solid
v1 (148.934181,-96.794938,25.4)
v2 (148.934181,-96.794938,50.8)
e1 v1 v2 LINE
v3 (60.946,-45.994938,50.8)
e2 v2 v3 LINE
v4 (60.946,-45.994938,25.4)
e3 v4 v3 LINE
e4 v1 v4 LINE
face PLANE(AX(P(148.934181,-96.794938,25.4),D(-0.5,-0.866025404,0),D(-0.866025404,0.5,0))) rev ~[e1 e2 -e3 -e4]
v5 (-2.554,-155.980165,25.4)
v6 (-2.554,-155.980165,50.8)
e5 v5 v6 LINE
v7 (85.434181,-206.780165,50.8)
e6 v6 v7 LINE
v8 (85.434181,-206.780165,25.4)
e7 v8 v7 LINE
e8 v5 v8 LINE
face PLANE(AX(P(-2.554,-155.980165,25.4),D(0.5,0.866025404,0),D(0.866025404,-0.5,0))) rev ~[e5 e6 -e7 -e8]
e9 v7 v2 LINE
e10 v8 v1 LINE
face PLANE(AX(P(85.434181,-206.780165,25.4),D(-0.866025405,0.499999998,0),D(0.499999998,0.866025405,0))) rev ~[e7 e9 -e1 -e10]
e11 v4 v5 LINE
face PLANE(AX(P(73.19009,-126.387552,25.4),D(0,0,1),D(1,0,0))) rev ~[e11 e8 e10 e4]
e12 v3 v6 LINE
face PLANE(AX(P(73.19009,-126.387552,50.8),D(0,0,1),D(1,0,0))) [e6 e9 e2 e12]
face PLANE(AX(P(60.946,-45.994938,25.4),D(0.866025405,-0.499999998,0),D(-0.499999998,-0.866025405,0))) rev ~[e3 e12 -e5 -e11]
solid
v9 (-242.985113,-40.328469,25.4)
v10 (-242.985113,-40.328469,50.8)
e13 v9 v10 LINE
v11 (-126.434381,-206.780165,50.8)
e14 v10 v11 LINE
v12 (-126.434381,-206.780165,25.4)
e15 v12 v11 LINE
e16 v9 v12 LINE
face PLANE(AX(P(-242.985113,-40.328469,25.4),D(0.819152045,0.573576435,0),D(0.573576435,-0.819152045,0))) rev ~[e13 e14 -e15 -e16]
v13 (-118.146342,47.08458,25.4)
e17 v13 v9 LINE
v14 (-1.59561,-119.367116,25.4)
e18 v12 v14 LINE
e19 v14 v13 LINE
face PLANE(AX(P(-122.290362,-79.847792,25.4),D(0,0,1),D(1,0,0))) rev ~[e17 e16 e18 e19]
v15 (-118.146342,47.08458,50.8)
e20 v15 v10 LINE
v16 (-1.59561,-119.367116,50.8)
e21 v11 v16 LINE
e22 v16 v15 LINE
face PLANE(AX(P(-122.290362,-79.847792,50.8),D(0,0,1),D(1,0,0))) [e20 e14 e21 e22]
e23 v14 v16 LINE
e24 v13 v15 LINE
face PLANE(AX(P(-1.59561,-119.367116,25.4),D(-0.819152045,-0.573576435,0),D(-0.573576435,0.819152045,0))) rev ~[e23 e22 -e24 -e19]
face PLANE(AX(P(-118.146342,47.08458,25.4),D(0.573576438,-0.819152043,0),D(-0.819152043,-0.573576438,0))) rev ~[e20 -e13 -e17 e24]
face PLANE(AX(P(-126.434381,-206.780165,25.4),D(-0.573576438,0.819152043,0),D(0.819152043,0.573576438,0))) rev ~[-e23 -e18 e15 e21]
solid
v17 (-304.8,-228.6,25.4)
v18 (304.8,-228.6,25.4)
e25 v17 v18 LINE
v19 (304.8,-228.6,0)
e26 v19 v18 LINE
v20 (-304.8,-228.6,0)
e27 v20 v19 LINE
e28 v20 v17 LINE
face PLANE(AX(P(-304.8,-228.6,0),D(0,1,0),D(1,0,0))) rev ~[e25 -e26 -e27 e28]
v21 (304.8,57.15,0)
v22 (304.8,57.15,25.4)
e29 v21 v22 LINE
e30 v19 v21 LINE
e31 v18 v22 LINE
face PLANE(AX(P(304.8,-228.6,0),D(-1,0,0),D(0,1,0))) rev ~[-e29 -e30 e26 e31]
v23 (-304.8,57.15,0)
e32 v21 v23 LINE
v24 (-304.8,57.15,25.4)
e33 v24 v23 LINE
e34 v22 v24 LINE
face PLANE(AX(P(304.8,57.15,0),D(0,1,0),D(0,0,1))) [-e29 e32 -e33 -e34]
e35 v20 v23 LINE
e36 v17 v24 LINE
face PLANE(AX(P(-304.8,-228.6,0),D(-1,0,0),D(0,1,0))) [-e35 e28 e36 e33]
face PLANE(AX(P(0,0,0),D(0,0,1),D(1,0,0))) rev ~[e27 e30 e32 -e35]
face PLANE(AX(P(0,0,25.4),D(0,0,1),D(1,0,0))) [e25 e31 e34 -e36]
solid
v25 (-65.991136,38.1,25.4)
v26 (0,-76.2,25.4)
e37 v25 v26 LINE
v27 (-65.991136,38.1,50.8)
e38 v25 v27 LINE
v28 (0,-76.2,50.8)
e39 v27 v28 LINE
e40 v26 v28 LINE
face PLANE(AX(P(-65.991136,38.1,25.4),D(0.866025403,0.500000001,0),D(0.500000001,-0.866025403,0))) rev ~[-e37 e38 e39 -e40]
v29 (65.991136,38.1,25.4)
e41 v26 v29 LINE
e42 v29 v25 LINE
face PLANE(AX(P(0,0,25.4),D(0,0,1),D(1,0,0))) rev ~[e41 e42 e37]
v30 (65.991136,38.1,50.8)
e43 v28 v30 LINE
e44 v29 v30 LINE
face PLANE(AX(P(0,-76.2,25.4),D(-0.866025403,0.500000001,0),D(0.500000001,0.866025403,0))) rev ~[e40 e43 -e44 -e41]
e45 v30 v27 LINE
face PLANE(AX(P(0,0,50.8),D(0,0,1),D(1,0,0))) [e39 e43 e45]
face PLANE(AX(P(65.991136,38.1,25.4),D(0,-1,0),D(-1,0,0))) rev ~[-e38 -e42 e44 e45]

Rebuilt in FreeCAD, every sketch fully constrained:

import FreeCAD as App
import Part
import Sketcher
Q = App.Units.Quantity

doc = App.newDocument("Part")
params = doc.addObject("Spreadsheet::Sheet", "Params")
for row, (alias, value) in enumerate([
    ("sketch1_width", "24 in"),
    ("sketch1_height", "18 in"),
    ("pad1_length", "1 in"),
    ("sketch2_height", "1 in"),
    ("sketch2_width", "6.75 in"),
    ("sketch3_length", "6 in"),
    ("sketch3_length2", "8 in"),
    ("sketch3_length3", "4 in"),
    ("sketch3_length4", "5 in"),
    ("pad2_length", "1 in"),
], start=1):
    params.set(f"A{row}", alias)
    params.set(f"B{row}", "=" + value)
    params.setAlias(f"B{row}", alias)

body = doc.addObject("PartDesign::Body", "Body")

# Sketch on XY plane
sketch1 = body.newObject("Sketcher::SketchObject", "Sketch")
sketch1.AttachmentSupport = (doc.getObject("XY_Plane"), [""])
sketch1.MapMode = "FlatFace"
sketch1.addGeometry(Part.LineSegment(App.Vector(-305, 229, 0), App.Vector(-305, -229, 0)), False)
sketch1.addGeometry(Part.LineSegment(App.Vector(-305, -229, 0), App.Vector(305, -229, 0)), False)
sketch1.addGeometry(Part.LineSegment(App.Vector(305, -229, 0), App.Vector(305, 229, 0)), False)
sketch1.addGeometry(Part.LineSegment(App.Vector(305, 229, 0), App.Vector(-305, 229, 0)), False)
sketch1.addConstraint(Sketcher.Constraint("Coincident", 0, 2, 1, 1))
sketch1.addConstraint(Sketcher.Constraint("Coincident", 1, 2, 2, 1))
sketch1.addConstraint(Sketcher.Constraint("Coincident", 2, 2, 3, 1))
sketch1.addConstraint(Sketcher.Constraint("Coincident", 3, 2, 0, 1))
sketch1.addConstraint(Sketcher.Constraint("Vertical", 0))
sketch1.addConstraint(Sketcher.Constraint("Horizontal", 1))
sketch1.addConstraint(Sketcher.Constraint("Vertical", 2))
sketch1.addConstraint(Sketcher.Constraint("Horizontal", 3))
sketch1.addConstraint(Sketcher.Constraint("Symmetric", 0, 2, 2, 2, -1, 1))
sketch1.addConstraint(Sketcher.Constraint("DistanceX", 1, 1, 1, 2, Q("24 in")))
sketch1.addConstraint(Sketcher.Constraint("DistanceY", 0, 2, 0, 1, Q("18 in")))
sketch1.setExpression("Constraints[9]", "Params.sketch1_width")
sketch1.setExpression("Constraints[10]", "Params.sketch1_height")
pad1 = body.newObject("PartDesign::Pad", "Pad")
pad1.Profile = sketch1
pad1.setExpression("Length", "Params.pad1_length")

# Sketch on YZ plane
sketch2 = body.newObject("Sketcher::SketchObject", "Sketch001")
sketch2.AttachmentSupport = (doc.getObject("YZ_Plane"), [""])
sketch2.MapMode = "FlatFace"
sketch2.AttachmentOffset = App.Placement(App.Vector(0, 0, 12 * 25.4), App.Rotation())
sketch2.addGeometry(Part.LineSegment(App.Vector(57, 25, 0), App.Vector(57, 0, 0)), False)
sketch2.addGeometry(Part.LineSegment(App.Vector(57, 0, 0), App.Vector(229, 0, 0)), False)
sketch2.addGeometry(Part.LineSegment(App.Vector(229, 0, 0), App.Vector(229, 25, 0)), False)
sketch2.addGeometry(Part.LineSegment(App.Vector(229, 25, 0), App.Vector(57, 25, 0)), False)
sketch2.addConstraint(Sketcher.Constraint("Coincident", 0, 2, 1, 1))
sketch2.addConstraint(Sketcher.Constraint("Coincident", 1, 2, 2, 1))
sketch2.addConstraint(Sketcher.Constraint("Coincident", 2, 2, 3, 1))
sketch2.addConstraint(Sketcher.Constraint("Coincident", 3, 2, 0, 1))
sketch2.addConstraint(Sketcher.Constraint("Vertical", 0))
sketch2.addConstraint(Sketcher.Constraint("Horizontal", 1))
sketch2.addConstraint(Sketcher.Constraint("Vertical", 2))
sketch2.addConstraint(Sketcher.Constraint("Horizontal", 3))
sketch2.addConstraint(Sketcher.Constraint("PointOnObject", 0, 2, -1))
sketch2.addConstraint(Sketcher.Constraint("DistanceY", 0, 2, 0, 1, Q("1 in")))
sketch2.addConstraint(Sketcher.Constraint("DistanceX", -1, 1, 1, 2, Q("9 in")))
sketch2.addConstraint(Sketcher.Constraint("DistanceX", 1, 1, 1, 2, Q("6.75 in")))
sketch2.setExpression("Constraints[9]", "Params.sketch2_height")
sketch2.setExpression("Constraints[11]", "Params.sketch2_width")
pocket1 = body.newObject("PartDesign::Pocket", "Pocket")
pocket1.Profile = sketch2
pocket1.Type = "ThroughAll"
body2 = doc.addObject("PartDesign::Body", "Body001")
body2.AllowCompound = True

# Sketch on XY plane
sketch3 = body2.newObject("Sketcher::SketchObject", "Sketch002")
sketch3.AttachmentSupport = (doc.getObject("XY_Plane001"), [""])
sketch3.MapMode = "FlatFace"
sketch3.AttachmentOffset = App.Placement(App.Vector(0, 0, 1 * 25.4), App.Rotation())
sketch3.addGeometry(Part.LineSegment(App.Vector(0, -76, 0), App.Vector(66, 38, 0)), False)
sketch3.addGeometry(Part.LineSegment(App.Vector(66, 38, 0), App.Vector(-66, 38, 0)), False)
sketch3.addGeometry(Part.LineSegment(App.Vector(-66, 38, 0), App.Vector(0, -76, 0)), False)
sketch3.addGeometry(Part.LineSegment(App.Vector(-118, 47, 0), App.Vector(-243, -40, 0)), False)
sketch3.addGeometry(Part.LineSegment(App.Vector(-243, -40, 0), App.Vector(-126, -207, 0)), False)
sketch3.addGeometry(Part.LineSegment(App.Vector(-126, -207, 0), App.Vector(-2, -119, 0)), False)
sketch3.addGeometry(Part.LineSegment(App.Vector(-2, -119, 0), App.Vector(-118, 47, 0)), False)
sketch3.addGeometry(Part.LineSegment(App.Vector(-3, -156, 0), App.Vector(85, -207, 0)), False)
sketch3.addGeometry(Part.LineSegment(App.Vector(85, -207, 0), App.Vector(149, -97, 0)), False)
sketch3.addGeometry(Part.LineSegment(App.Vector(149, -97, 0), App.Vector(61, -46, 0)), False)
sketch3.addGeometry(Part.LineSegment(App.Vector(61, -46, 0), App.Vector(-3, -156, 0)), False)
sketch3.addConstraint(Sketcher.Constraint("Coincident", 0, 2, 1, 1))
sketch3.addConstraint(Sketcher.Constraint("Coincident", 1, 2, 2, 1))
sketch3.addConstraint(Sketcher.Constraint("Coincident", 2, 2, 0, 1))
sketch3.addConstraint(Sketcher.Constraint("Coincident", 3, 2, 4, 1))
sketch3.addConstraint(Sketcher.Constraint("Coincident", 4, 2, 5, 1))
sketch3.addConstraint(Sketcher.Constraint("Coincident", 5, 2, 6, 1))
sketch3.addConstraint(Sketcher.Constraint("Coincident", 6, 2, 3, 1))
sketch3.addConstraint(Sketcher.Constraint("Coincident", 7, 2, 8, 1))
sketch3.addConstraint(Sketcher.Constraint("Coincident", 8, 2, 9, 1))
sketch3.addConstraint(Sketcher.Constraint("Coincident", 9, 2, 10, 1))
sketch3.addConstraint(Sketcher.Constraint("Coincident", 10, 2, 7, 1))
sketch3.addConstraint(Sketcher.Constraint("Horizontal", 1))
sketch3.addConstraint(Sketcher.Constraint("PointOnObject", 2, 2, -2))
sketch3.addConstraint(Sketcher.Constraint("Perpendicular", 3, 4))
sketch3.addConstraint(Sketcher.Constraint("Perpendicular", 4, 5))
sketch3.addConstraint(Sketcher.Constraint("Perpendicular", 5, 6))
sketch3.addConstraint(Sketcher.Constraint("Perpendicular", 0, 7))
sketch3.addConstraint(Sketcher.Constraint("Perpendicular", 7, 8))
sketch3.addConstraint(Sketcher.Constraint("Perpendicular", 8, 9))
sketch3.addConstraint(Sketcher.Constraint("Perpendicular", 9, 10))
sketch3.addConstraint(Sketcher.Constraint("Horizontal", 4, 2, 7, 2))
sketch3.addConstraint(Sketcher.Constraint("Equal", 0, 2))
sketch3.addConstraint(Sketcher.Constraint("Distance", 3, Q("6 in")))
sketch3.addConstraint(Sketcher.Constraint("Distance", 4, Q("8 in")))
sketch3.addConstraint(Sketcher.Constraint("Distance", 7, Q("4 in")))
sketch3.addConstraint(Sketcher.Constraint("Distance", 8, Q("5 in")))
sketch3.addConstraint(Sketcher.Constraint("DistanceY", 2, 2, -1, 1, Q("3 in")))
sketch3.addConstraint(Sketcher.Constraint("Angle", 0, Q("60 deg")))
sketch3.addConstraint(Sketcher.Constraint("Angle", 3, Q("-145 deg")))
sketch3.addConstraint(Sketcher.Constraint("DistanceY", -1, 1, 0, 2, Q("1.5 in")))
sketch3.addConstraint(Sketcher.Constraint("DistanceX", -1, 1, 9, 2, 60.946))
sketch3.addConstraint(Sketcher.Constraint("DistanceY", 3, 2, -1, 1, 40.328469))
sketch3.addConstraint(Sketcher.Constraint("DistanceX", 4, 2, -1, 1, 126.434381))
sketch3.setExpression("Constraints[22]", "Params.sketch3_length")
sketch3.setExpression("Constraints[23]", "Params.sketch3_length2")
sketch3.setExpression("Constraints[24]", "Params.sketch3_length3")
sketch3.setExpression("Constraints[25]", "Params.sketch3_length4")
pad2 = body2.newObject("PartDesign::Pad", "Pad001")
pad2.Profile = sketch3
pad2.setExpression("Length", "Params.pad2_length")

doc.recompute()
